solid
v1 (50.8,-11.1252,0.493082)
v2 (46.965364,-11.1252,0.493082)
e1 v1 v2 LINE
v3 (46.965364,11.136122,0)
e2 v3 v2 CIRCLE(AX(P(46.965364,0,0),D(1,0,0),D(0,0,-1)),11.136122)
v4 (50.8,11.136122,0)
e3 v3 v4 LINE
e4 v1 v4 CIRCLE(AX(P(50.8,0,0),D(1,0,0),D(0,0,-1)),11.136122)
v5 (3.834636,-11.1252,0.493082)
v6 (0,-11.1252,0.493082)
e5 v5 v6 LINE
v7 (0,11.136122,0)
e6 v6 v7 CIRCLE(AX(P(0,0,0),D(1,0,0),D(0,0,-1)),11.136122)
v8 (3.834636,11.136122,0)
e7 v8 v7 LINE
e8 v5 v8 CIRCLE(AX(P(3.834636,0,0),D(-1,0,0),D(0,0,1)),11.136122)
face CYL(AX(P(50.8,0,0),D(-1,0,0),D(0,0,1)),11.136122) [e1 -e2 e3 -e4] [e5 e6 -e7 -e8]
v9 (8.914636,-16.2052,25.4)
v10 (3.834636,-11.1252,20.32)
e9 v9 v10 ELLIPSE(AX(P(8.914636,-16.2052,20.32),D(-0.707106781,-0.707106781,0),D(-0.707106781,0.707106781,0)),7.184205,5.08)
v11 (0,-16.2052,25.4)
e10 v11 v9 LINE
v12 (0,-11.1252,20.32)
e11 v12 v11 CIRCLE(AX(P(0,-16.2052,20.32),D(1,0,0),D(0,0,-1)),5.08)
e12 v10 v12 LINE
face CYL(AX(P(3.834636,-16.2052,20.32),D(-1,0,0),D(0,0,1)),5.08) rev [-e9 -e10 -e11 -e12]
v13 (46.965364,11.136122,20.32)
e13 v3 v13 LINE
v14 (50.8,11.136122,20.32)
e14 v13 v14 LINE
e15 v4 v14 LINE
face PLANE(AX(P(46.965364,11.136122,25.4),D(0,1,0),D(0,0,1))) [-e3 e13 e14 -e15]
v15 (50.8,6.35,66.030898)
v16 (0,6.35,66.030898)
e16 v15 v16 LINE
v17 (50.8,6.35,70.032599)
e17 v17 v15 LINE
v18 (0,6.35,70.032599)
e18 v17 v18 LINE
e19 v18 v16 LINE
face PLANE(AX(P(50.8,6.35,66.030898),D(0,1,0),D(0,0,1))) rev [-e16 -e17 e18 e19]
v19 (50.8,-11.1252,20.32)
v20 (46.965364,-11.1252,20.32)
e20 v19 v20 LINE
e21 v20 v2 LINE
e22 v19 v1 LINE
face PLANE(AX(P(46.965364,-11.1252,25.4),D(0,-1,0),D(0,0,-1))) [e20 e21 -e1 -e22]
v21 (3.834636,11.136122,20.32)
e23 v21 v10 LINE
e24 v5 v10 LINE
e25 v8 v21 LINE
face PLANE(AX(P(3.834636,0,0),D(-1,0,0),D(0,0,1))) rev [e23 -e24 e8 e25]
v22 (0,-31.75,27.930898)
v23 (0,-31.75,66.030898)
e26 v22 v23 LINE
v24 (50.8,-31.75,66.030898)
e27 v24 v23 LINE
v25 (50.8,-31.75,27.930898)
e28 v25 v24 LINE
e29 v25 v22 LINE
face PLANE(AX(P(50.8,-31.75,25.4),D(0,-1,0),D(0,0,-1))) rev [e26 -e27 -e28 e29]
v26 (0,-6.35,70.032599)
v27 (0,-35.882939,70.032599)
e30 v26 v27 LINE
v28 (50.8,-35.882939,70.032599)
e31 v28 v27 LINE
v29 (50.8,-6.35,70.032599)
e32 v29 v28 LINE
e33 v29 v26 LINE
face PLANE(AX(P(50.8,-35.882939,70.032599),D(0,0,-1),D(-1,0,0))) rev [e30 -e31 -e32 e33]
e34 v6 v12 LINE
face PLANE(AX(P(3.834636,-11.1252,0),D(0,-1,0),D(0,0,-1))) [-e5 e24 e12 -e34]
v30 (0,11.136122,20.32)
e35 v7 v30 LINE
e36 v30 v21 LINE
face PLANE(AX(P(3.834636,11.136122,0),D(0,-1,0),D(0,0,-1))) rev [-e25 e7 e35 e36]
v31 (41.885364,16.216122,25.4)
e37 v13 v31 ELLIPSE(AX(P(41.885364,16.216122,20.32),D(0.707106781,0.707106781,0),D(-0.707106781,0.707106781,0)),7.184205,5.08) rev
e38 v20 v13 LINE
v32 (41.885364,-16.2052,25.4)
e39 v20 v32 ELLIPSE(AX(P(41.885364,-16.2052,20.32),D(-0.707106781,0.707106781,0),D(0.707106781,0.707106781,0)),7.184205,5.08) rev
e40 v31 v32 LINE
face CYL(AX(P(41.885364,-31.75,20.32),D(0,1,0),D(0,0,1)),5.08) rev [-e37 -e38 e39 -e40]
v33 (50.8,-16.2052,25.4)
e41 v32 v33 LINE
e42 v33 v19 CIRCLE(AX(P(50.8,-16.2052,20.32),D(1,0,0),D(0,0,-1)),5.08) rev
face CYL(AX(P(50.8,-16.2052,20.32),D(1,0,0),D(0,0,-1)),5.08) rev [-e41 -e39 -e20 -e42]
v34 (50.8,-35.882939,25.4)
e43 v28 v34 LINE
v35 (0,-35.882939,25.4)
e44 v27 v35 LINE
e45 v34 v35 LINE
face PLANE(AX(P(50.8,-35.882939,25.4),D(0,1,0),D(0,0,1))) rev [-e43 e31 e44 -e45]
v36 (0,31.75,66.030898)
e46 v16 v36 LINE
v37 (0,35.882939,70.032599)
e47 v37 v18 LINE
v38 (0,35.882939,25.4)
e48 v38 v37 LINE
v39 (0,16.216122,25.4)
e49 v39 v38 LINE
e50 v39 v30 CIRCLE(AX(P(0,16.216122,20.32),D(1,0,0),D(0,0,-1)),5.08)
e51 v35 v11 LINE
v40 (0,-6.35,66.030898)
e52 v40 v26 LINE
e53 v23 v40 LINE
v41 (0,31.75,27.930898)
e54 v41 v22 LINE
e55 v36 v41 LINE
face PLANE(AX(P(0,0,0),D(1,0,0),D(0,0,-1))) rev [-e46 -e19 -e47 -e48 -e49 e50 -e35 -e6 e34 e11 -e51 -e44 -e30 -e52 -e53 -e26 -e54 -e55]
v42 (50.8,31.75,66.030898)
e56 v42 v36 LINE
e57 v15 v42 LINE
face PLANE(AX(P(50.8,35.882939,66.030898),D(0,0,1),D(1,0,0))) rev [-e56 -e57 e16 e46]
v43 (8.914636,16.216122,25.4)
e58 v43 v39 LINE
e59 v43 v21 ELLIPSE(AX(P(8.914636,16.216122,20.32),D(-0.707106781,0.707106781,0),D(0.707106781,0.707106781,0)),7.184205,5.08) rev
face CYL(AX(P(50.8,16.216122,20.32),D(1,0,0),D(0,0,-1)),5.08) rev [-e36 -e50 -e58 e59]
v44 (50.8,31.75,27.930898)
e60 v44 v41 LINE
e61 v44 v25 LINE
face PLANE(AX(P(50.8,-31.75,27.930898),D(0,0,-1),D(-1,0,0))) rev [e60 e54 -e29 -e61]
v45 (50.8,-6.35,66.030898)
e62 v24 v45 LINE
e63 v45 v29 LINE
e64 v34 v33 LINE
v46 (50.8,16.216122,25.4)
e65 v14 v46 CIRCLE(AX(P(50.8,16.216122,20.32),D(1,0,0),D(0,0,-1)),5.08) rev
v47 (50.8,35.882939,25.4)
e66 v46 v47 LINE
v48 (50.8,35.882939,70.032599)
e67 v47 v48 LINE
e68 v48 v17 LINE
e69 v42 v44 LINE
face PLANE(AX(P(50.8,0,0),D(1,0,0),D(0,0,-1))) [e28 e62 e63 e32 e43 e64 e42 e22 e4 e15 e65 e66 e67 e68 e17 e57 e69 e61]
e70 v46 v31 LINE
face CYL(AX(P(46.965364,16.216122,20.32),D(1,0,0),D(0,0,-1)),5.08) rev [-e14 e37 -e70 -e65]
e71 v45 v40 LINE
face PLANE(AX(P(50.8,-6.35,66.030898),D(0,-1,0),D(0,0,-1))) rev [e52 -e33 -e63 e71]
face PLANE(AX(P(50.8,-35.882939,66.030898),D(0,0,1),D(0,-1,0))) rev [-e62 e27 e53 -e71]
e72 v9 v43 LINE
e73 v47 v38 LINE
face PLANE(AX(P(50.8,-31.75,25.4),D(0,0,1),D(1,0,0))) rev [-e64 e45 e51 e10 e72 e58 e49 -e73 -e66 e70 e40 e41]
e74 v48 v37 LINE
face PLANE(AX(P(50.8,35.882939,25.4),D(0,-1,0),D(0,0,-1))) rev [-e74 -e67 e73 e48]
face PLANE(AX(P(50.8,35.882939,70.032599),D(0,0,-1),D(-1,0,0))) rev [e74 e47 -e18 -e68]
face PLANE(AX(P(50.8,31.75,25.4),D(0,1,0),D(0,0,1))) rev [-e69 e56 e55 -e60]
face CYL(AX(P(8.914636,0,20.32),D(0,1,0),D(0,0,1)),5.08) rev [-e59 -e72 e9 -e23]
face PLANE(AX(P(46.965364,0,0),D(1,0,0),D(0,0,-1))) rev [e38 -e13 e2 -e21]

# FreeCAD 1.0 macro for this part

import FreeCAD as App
import Part
import Sketcher
from FreeCAD import Vector
Q = App.Units.Quantity


def edges_at(feature, points):
    """Names of the edges that pass closest to the given points."""
    edges = feature.Shape.Edges
    near = lambda p: min(range(len(edges)), key=lambda i: edges[i].distToShape(Part.Vertex(*p))[0])
    return sorted({f"Edge{near(p) + 1}" for p in points})


def add_polygon(sketch, points):
    """Adds a closed chain of lines whose ends are joined by coincident constraints."""
    first, n = sketch.GeometryCount, len(points)
    for a, b in zip(points, points[1:] + points[:1]):
        sketch.addGeometry(Part.LineSegment(App.Vector(*a, 0), App.Vector(*b, 0)), False)
    for i in range(n):
        sketch.addConstraint(Sketcher.Constraint("Coincident", first + i, 2, first + (i + 1) % n, 1))

doc = App.newDocument("Part")
body = doc.addObject("PartDesign::Body", "Body")

# Sketch on YZ plane
sketch1 = doc.addObject("Sketcher::SketchObject", "Sketch")
body.addObject(sketch1)
sketch1.AttachmentSupport = (doc.YZ_Plane, [""])
sketch1.MapMode = "FlatFace"
sketch1.addGeometry(Part.Circle(Vector(0, 0, 0), Vector(0, 0, 1), 11), False)
sketch1.addConstraint(Sketcher.Constraint("Coincident", 0, 3, -1, 1))
sketch1.addConstraint(Sketcher.Constraint("Diameter", 0, 22.272243))
pad1 = doc.addObject("PartDesign::Pad", "Pad")
body.addObject(pad1)
pad1.Profile = sketch1
pad1.Length = Q("2 in")

# Sketch on YZ plane
sketch2 = doc.addObject("Sketcher::SketchObject", "Sketch001")
body.addObject(sketch2)
sketch2.AttachmentSupport = (doc.YZ_Plane, [""])
sketch2.MapMode = "FlatFace"
add_polygon(sketch2, [(11, 25), (11, 0), (-11, 0), (-11, 25)])  # lines 0-3
sketch2.addConstraint(Sketcher.Constraint("Vertical", 0))
sketch2.addConstraint(Sketcher.Constraint("Horizontal", 1))
sketch2.addConstraint(Sketcher.Constraint("Vertical", 2))
sketch2.addConstraint(Sketcher.Constraint("Horizontal", 3))
sketch2.addConstraint(Sketcher.Constraint("PointOnObject", 0, 2, -1))
sketch2.addConstraint(Sketcher.Constraint("DistanceY", 0, 2, 0, 1, Q("1 in")))
sketch2.addConstraint(Sketcher.Constraint("DistanceX", 1, 2, -1, 1, Q("0.438 in")))
sketch2.addConstraint(Sketcher.Constraint("DistanceX", 1, 2, 1, 1, 22.261322))
pad2 = doc.addObject("PartDesign::Pad", "Pad001")
body.addObject(pad2)
pad2.Profile = sketch2
pad2.Length = 3.834636

# Sketch on YZ plane
sketch3 = doc.addObject("Sketcher::SketchObject", "Sketch002")
body.addObject(sketch3)
sketch3.AttachmentSupport = (doc.YZ_Plane, [""])
sketch3.MapMode = "FlatFace"
add_polygon(sketch3, [(-31.8, 27.9), (-31.8, 25.4), (31.8, 25.4), (31.8, 27.9)])  # lines 0-3
sketch3.addConstraint(Sketcher.Constraint("Vertical", 0))
sketch3.addConstraint(Sketcher.Constraint("Horizontal", 1))
sketch3.addConstraint(Sketcher.Constraint("Vertical", 2))
sketch3.addConstraint(Sketcher.Constraint("Horizontal", 3))
sketch3.addConstraint(Sketcher.Constraint("DistanceX", 1, 1, 1, 2, Q("2.5 in")))
sketch3.addConstraint(Sketcher.Constraint("DistanceY", -1, 1, 0, 2, Q("1 in")))
sketch3.addConstraint(Sketcher.Constraint("DistanceX", 0, 2, -1, 1, Q("1.25 in")))
sketch3.addConstraint(Sketcher.Constraint("DistanceY", 0, 2, 0, 1, 2.530898))
pad3 = doc.addObject("PartDesign::Pad", "Pad002")
body.addObject(pad3)
pad3.Profile = sketch3
pad3.Length = Q("2 in")

# Sketch on YZ plane
sketch4 = doc.addObject("Sketcher::SketchObject", "Sketch003")
body.addObject(sketch4)
sketch4.AttachmentSupport = (doc.YZ_Plane, [""])
sketch4.MapMode = "FlatFace"
add_polygon(sketch4, [(-35.9, 66), (-35.9, 25.4), (-31.8, 25.4), (-31.8, 66)])  # lines 0-3
add_polygon(sketch4, [(31.8, 66), (31.8, 25.4), (35.9, 25.4), (35.9, 66)])  # lines 4-7
sketch4.addConstraint(Sketcher.Constraint("Vertical", 0))
sketch4.addConstraint(Sketcher.Constraint("Horizontal", 1))
sketch4.addConstraint(Sketcher.Constraint("Vertical", 2))
sketch4.addConstraint(Sketcher.Constraint("Horizontal", 3))
sketch4.addConstraint(Sketcher.Constraint("Vertical", 4))
sketch4.addConstraint(Sketcher.Constraint("Horizontal", 5))
sketch4.addConstraint(Sketcher.Constraint("Vertical", 6))
sketch4.addConstraint(Sketcher.Constraint("Horizontal", 7))
sketch4.addConstraint(Sketcher.Constraint("Symmetric", 1, 2, 4, 2, -2))
sketch4.addConstraint(Sketcher.Constraint("Symmetric", 3, 2, 6, 2, -2))
sketch4.addConstraint(Sketcher.Constraint("DistanceY", -1, 1, 0, 2, Q("1 in")))
sketch4.addConstraint(Sketcher.Constraint("DistanceX", 1, 2, 4, 2, Q("2.5 in")))
sketch4.addConstraint(Sketcher.Constraint("DistanceY", 0, 2, 0, 1, 40.630898))
sketch4.addConstraint(Sketcher.Constraint("DistanceX", 1, 1, 1, 2, 4.132939))
pad4 = doc.addObject("PartDesign::Pad", "Pad003")
body.addObject(pad4)
pad4.Profile = sketch4
pad4.Length = Q("2 in")

# Sketch on YZ plane
sketch5 = doc.addObject("Sketcher::SketchObject", "Sketch004")
body.addObject(sketch5)
sketch5.AttachmentSupport = (doc.YZ_Plane, [""])
sketch5.MapMode = "FlatFace"
add_polygon(sketch5, [(-35.9, 70), (-35.9, 66), (-6.3, 66), (-6.3, 70)])  # lines 0-3
add_polygon(sketch5, [(6.3, 70), (6.3, 66), (35.9, 66), (35.9, 70)])  # lines 4-7
sketch5.addConstraint(Sketcher.Constraint("Vertical", 0))
sketch5.addConstraint(Sketcher.Constraint("Horizontal", 1))
sketch5.addConstraint(Sketcher.Constraint("Vertical", 2))
sketch5.addConstraint(Sketcher.Constraint("Horizontal", 3))
sketch5.addConstraint(Sketcher.Constraint("Vertical", 4))
sketch5.addConstraint(Sketcher.Constraint("Horizontal", 5))
sketch5.addConstraint(Sketcher.Constraint("Vertical", 6))
sketch5.addConstraint(Sketcher.Constraint("Horizontal", 7))
sketch5.addConstraint(Sketcher.Constraint("Symmetric", 1, 2, 4, 2, -2))
sketch5.addConstraint(Sketcher.Constraint("Symmetric", 3, 2, 6, 2, -2))
sketch5.addConstraint(Sketcher.Constraint("DistanceX", 1, 2, 4, 2, Q("0.5 in")))
sketch5.addConstraint(Sketcher.Constraint("DistanceY", 0, 2, 0, 1, 4.001701))
sketch5.addConstraint(Sketcher.Constraint("DistanceX", 1, 1, 1, 2, 29.532939))
sketch5.addConstraint(Sketcher.Constraint("DistanceY", -1, 1, 0, 2, 66.030898))
pad5 = doc.addObject("PartDesign::Pad", "Pad004")
body.addObject(pad5)
pad5.Profile = sketch5
pad5.Length = Q("2 in")

# Sketch on YZ plane
sketch6 = doc.addObject("Sketcher::SketchObject", "Sketch005")
body.addObject(sketch6)
sketch6.AttachmentSupport = (doc.YZ_Plane, [""])
sketch6.MapMode = "FlatFace"
sketch6.AttachmentOffset = App.Placement(Vector(0, 0, 2 * 25.4), App.Rotation())
add_polygon(sketch6, [(-11, 25), (-11, 0), (11, 0), (11, 25)])  # lines 0-3
sketch6.addConstraint(Sketcher.Constraint("Vertical", 0))
sketch6.addConstraint(Sketcher.Constraint("Horizontal", 1))
sketch6.addConstraint(Sketcher.Constraint("Vertical", 2))
sketch6.addConstraint(Sketcher.Constraint("Horizontal", 3))
sketch6.addConstraint(Sketcher.Constraint("PointOnObject", 0, 2, -1))
sketch6.addConstraint(Sketcher.Constraint("DistanceY", 0, 2, 0, 1, Q("1 in")))
sketch6.addConstraint(Sketcher.Constraint("DistanceX", 0, 2, -1, 1, Q("0.438 in")))
sketch6.addConstraint(Sketcher.Constraint("DistanceX", 1, 1, 1, 2, 22.261322))
pad6 = doc.addObject("PartDesign::Pad", "Pad005")
body.addObject(pad6)
pad6.Profile = sketch6
pad6.Length = 3.834636
pad6.Reversed = True
doc.recompute()

fillet = doc.addObject("PartDesign::Fillet", "Fillet")
body.addObject(fillet)
fillet.Base = (pad6, edges_at(pad6, [
    (1.917, 11.136, 25.4),
    (3.835, 0.005, 25.4),
    (1.917, -11.125, 25.4),
    (46.965, 0.005, 25.4),
    (48.883, -11.125, 25.4),
    (48.883, 11.136, 25.4),
]))
fillet.Radius = Q("0.2 in")

doc.recompute()
